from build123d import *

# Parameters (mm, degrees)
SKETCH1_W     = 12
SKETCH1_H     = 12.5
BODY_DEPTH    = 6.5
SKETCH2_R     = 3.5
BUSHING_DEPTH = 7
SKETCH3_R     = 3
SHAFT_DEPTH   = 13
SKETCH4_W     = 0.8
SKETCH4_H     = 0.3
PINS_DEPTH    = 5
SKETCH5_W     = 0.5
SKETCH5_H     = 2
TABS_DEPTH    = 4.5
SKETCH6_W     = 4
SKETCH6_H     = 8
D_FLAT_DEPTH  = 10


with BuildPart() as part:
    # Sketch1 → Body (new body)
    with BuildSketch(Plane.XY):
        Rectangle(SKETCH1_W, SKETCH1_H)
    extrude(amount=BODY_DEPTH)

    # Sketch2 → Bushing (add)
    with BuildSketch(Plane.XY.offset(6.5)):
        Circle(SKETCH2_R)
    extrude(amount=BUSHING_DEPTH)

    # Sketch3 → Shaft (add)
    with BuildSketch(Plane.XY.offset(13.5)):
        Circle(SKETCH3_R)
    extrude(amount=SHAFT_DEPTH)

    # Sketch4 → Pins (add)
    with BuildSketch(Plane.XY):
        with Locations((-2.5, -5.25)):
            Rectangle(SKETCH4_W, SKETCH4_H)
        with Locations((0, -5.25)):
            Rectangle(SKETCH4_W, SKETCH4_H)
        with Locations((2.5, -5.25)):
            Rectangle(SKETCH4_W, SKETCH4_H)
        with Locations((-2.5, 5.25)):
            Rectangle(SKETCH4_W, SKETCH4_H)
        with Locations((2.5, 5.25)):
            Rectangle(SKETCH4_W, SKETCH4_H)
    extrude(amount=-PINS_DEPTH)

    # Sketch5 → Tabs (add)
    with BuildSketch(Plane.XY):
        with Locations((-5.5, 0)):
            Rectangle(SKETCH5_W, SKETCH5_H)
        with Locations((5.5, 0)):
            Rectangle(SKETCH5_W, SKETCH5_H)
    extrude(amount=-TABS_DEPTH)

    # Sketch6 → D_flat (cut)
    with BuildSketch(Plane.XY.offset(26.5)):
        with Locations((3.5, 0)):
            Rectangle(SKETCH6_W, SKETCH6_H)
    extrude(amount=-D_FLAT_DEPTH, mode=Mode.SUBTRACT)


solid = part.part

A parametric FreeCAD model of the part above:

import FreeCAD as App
import Part
import Sketcher
from FreeCAD import Vector
Q = App.Units.Quantity


def add_polygon(sketch, points):
    """Adds a closed chain of lines whose ends are joined by coincident constraints."""
    first, n = sketch.GeometryCount, len(points)
    for a, b in zip(points, points[1:] + points[:1]):
        sketch.addGeometry(Part.LineSegment(App.Vector(*a, 0), App.Vector(*b, 0)), False)
    for i in range(n):
        sketch.addConstraint(Sketcher.Constraint("Coincident", first + i, 2, first + (i + 1) % n, 1))

doc = App.newDocument("Part")
body = doc.addObject("PartDesign::Body", "Body")

# Sketch on XY plane
sketch1 = body.newObject("Sketcher::SketchObject", "Sketch")
sketch1.AttachmentSupport = (doc.getObject("XY_Plane"), [""])
sketch1.MapMode = "FlatFace"
add_polygon(sketch1, [(-6, 6.25), (-6, -6.25), (6, -6.25), (6, 6.25)])  # lines 0-3
sketch1.addConstraint([
    Sketcher.Constraint("Vertical", 0),
    Sketcher.Constraint("Horizontal", 1),
    Sketcher.Constraint("Vertical", 2),
    Sketcher.Constraint("Horizontal", 3),
    Sketcher.Constraint("Symmetric", 0, 2, 2, 2, -1, 1),
    Sketcher.Constraint("DistanceX", 1, 1, 1, 2, Q("12 mm")),
    Sketcher.Constraint("DistanceY", 0, 2, 0, 1, Q("12.5 mm")),
])
pad1 = body.newObject("PartDesign::Pad", "Pad")
pad1.Profile = sketch1
pad1.Length = 6.5

# Sketch on XY plane
sketch2 = body.newObject("Sketcher::SketchObject", "Sketch001")
sketch2.AttachmentSupport = (doc.getObject("XY_Plane"), [""])
sketch2.MapMode = "FlatFace"
sketch2.AttachmentOffset = App.Placement(Vector(0, 0, 6.5), App.Rotation())
sketch2.addGeometry(Part.Circle(Vector(0, 0, 0), Vector(0, 0, 1), 3.5), False)
sketch2.addConstraint([
    Sketcher.Constraint("Coincident", 0, 3, -1, 1),
    Sketcher.Constraint("Diameter", 0, Q("7 mm")),
])
pad2 = body.newObject("PartDesign::Pad", "Pad001")
pad2.Profile = sketch2
pad2.Length = 7

# Sketch on XY plane
sketch3 = body.newObject("Sketcher::SketchObject", "Sketch002")
sketch3.AttachmentSupport = (doc.getObject("XY_Plane"), [""])
sketch3.MapMode = "FlatFace"
sketch3.AttachmentOffset = App.Placement(Vector(0, 0, 13.5), App.Rotation())
sketch3.addGeometry(Part.Circle(Vector(0, 0, 0), Vector(0, 0, 1), 3), False)
sketch3.addConstraint([
    Sketcher.Constraint("Coincident", 0, 3, -1, 1),
    Sketcher.Constraint("Diameter", 0, Q("6 mm")),
])
pad3 = body.newObject("PartDesign::Pad", "Pad002")
pad3.Profile = sketch3
pad3.Length = 13

# Sketch on XY plane
sketch4 = body.newObject("Sketcher::SketchObject", "Sketch003")
sketch4.AttachmentSupport = (doc.getObject("XY_Plane"), [""])
sketch4.MapMode = "FlatFace"
add_polygon(sketch4, [(-2.9, -5.1), (-2.9, -5.4), (-2.1, -5.4), (-2.1, -5.1)])  # lines 0-3
add_polygon(sketch4, [(-0.4, -5.1), (-0.4, -5.4), (0.4, -5.4), (0.4, -5.1)])  # lines 4-7
add_polygon(sketch4, [(2.1, -5.1), (2.1, -5.4), (2.9, -5.4), (2.9, -5.1)])  # lines 8-11
add_polygon(sketch4, [(-2.9, 5.4), (-2.9, 5.1), (-2.1, 5.1), (-2.1, 5.4)])  # lines 12-15
add_polygon(sketch4, [(2.1, 5.4), (2.1, 5.1), (2.9, 5.1), (2.9, 5.4)])  # lines 16-19
sketch4.addConstraint([
    Sketcher.Constraint("Vertical", 0),
    Sketcher.Constraint("Horizontal", 1),
    Sketcher.Constraint("Vertical", 2),
    Sketcher.Constraint("Horizontal", 3),
    Sketcher.Constraint("Vertical", 4),
    Sketcher.Constraint("Horizontal", 5),
    Sketcher.Constraint("Vertical", 6),
    Sketcher.Constraint("Horizontal", 7),
    Sketcher.Constraint("Vertical", 8),
    Sketcher.Constraint("Horizontal", 9),
    Sketcher.Constraint("Vertical", 10),
    Sketcher.Constraint("Horizontal", 11),
    Sketcher.Constraint("Vertical", 12),
    Sketcher.Constraint("Horizontal", 13),
    Sketcher.Constraint("Vertical", 14),
    Sketcher.Constraint("Horizontal", 15),
    Sketcher.Constraint("Vertical", 16),
    Sketcher.Constraint("Horizontal", 17),
    Sketcher.Constraint("Vertical", 18),
    Sketcher.Constraint("Horizontal", 19),
    Sketcher.Constraint("Symmetric", 10, 2, 12, 2, -1, 1),
    Sketcher.Constraint("Symmetric", 8, 2, 14, 2, -1, 1),
    Sketcher.Constraint("Symmetric", 2, 2, 16, 2, -1, 1),
    Sketcher.Constraint("Symmetric", 0, 2, 18, 2, -1, 1),
    Sketcher.Constraint("Symmetric", 1, 2, 8, 2, -2),
    Sketcher.Constraint("Symmetric", 3, 2, 10, 2, -2),
    Sketcher.Constraint("Horizontal", 1, 2, 4, 2),
    Sketcher.Constraint("Horizontal", 3, 2, 6, 2),
    Sketcher.Constraint("Equal", 3, 5),
    Sketcher.Constraint("DistanceX", 1, 1, 1, 2, Q("0.8 mm")),
    Sketcher.Constraint("DistanceY", 0, 2, 0, 1, Q("0.3 mm")),
    Sketcher.Constraint("DistanceX", 12, 2, 16, 2, Q("5 mm")),
    Sketcher.Constraint("DistanceY", 0, 2, -1, 1, Q("5.4 mm")),
    Sketcher.Constraint("DistanceX", 4, 2, -1, 1, Q("0.4 mm")),
])
pad4 = body.newObject("PartDesign::Pad", "Pad003")
pad4.Profile = sketch4
pad4.Length = 5
pad4.Reversed = True

# Sketch on XY plane
sketch5 = body.newObject("Sketcher::SketchObject", "Sketch004")
sketch5.AttachmentSupport = (doc.getObject("XY_Plane"), [""])
sketch5.MapMode = "FlatFace"
add_polygon(sketch5, [(-5.75, 1), (-5.75, -1), (-5.25, -1), (-5.25, 1)])  # lines 0-3
add_polygon(sketch5, [(5.25, 1), (5.25, -1), (5.75, -1), (5.75, 1)])  # lines 4-7
sketch5.addConstraint([
    Sketcher.Constraint("Vertical", 0),
    Sketcher.Constraint("Horizontal", 1),
    Sketcher.Constraint("Vertical", 2),
    Sketcher.Constraint("Horizontal", 3),
    Sketcher.Constraint("Vertical", 4),
    Sketcher.Constraint("Horizontal", 5),
    Sketcher.Constraint("Vertical", 6),
    Sketcher.Constraint("Horizontal", 7),
    Sketcher.Constraint("Symmetric", 2, 2, 4, 2, -1, 1),
    Sketcher.Constraint("Symmetric", 0, 2, 6, 2, -1, 1),
    Sketcher.Constraint("Horizontal", 1, 2, 4, 2),
    Sketcher.Constraint("DistanceY", 0, 2, 0, 1, Q("2 mm")),
    Sketcher.Constraint("DistanceX", 1, 1, 1, 2, Q("0.5 mm")),
    Sketcher.Constraint("DistanceX", 0, 2, 4, 2, Q("11 mm")),
])
pad5 = body.newObject("PartDesign::Pad", "Pad004")
pad5.Profile = sketch5
pad5.Length = 4.5
pad5.Reversed = True

# Sketch on XY plane
sketch6 = body.newObject("Sketcher::SketchObject", "Sketch005")
sketch6.AttachmentSupport = (doc.getObject("XY_Plane"), [""])
sketch6.MapMode = "FlatFace"
sketch6.AttachmentOffset = App.Placement(Vector(0, 0, 26.5), App.Rotation())
add_polygon(sketch6, [(1.5, 4), (1.5, -4), (5.5, -4), (5.5, 4)])  # lines 0-3
sketch6.addConstraint([
    Sketcher.Constraint("Vertical", 0),
    Sketcher.Constraint("Horizontal", 1),
    Sketcher.Constraint("Vertical", 2),
    Sketcher.Constraint("Horizontal", 3),
    Sketcher.Constraint("DistanceX", 1, 1, 1, 2, Q("4 mm")),
    Sketcher.Constraint("DistanceY", 0, 2, 0, 1, Q("8 mm")),
    Sketcher.Constraint("DistanceY", 0, 2, -1, 1, Q("4 mm")),
    Sketcher.Constraint("DistanceX", -1, 1, 0, 2, Q("1.5 mm")),
])
pocket1 = body.newObject("PartDesign::Pocket", "Pocket")
pocket1.Profile = sketch6
pocket1.Length = 10

doc.recompute()
